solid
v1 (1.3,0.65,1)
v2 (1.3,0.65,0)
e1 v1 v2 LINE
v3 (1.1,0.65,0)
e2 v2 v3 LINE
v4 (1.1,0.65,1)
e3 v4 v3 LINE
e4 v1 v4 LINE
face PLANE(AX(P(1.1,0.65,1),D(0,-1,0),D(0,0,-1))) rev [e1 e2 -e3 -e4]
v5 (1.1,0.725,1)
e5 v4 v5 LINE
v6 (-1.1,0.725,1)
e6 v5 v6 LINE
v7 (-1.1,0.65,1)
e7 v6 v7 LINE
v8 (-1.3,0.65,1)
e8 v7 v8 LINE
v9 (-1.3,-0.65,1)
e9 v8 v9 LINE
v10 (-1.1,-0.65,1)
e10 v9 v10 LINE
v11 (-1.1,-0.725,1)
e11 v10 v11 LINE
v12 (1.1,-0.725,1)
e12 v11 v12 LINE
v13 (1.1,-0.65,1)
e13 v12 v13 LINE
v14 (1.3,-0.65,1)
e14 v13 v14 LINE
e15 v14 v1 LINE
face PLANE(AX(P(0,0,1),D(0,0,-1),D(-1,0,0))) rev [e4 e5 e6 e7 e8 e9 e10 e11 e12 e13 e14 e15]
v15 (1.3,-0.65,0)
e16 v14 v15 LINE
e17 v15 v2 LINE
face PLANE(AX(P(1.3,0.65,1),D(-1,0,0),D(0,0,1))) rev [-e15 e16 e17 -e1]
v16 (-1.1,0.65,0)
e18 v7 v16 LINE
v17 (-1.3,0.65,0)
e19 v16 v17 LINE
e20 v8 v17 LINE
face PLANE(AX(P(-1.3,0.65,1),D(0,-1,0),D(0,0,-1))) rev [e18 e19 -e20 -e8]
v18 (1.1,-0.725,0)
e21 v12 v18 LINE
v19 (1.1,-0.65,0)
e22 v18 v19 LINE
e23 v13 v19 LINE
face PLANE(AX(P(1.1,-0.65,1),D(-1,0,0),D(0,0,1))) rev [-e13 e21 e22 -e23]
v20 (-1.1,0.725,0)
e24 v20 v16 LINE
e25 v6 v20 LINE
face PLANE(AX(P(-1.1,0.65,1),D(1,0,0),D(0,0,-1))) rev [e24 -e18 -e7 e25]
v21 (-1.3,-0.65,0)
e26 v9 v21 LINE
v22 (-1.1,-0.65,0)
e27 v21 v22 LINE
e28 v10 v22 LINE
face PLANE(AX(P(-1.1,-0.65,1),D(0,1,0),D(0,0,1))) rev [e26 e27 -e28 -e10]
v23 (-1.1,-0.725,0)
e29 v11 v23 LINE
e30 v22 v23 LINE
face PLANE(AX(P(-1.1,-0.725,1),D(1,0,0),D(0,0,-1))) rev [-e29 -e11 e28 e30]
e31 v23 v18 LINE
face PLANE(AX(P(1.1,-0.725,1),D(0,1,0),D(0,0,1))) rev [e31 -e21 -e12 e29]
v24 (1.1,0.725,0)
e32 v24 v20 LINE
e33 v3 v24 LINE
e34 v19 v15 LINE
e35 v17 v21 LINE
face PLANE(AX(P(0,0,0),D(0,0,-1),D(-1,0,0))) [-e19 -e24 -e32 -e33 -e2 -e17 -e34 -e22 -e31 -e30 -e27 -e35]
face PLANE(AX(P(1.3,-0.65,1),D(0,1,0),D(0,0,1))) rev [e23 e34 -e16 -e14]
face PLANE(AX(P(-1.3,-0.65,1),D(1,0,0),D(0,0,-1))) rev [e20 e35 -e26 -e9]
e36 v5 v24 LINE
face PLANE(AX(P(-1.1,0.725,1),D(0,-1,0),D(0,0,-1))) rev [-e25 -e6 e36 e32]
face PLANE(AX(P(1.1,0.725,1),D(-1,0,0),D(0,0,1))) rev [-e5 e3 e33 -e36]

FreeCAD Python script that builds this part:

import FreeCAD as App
import Part
import Sketcher
from FreeCAD import Vector


def add_polygon(sketch, points):
    """Adds a closed chain of lines whose ends are joined by coincident constraints."""
    first, n = sketch.GeometryCount, len(points)
    for a, b in zip(points, points[1:] + points[:1]):
        sketch.addGeometry(Part.LineSegment(App.Vector(*a, 0), App.Vector(*b, 0)), False)
    for i in range(n):
        sketch.addConstraint(Sketcher.Constraint("Coincident", first + i, 2, first + (i + 1) % n, 1))

doc = App.newDocument("Part")
body = doc.addObject("PartDesign::Body", "Body")

# Sketch on XY plane
sketch1 = doc.addObject("Sketcher::SketchObject", "Sketch")
body.addObject(sketch1)
sketch1.AttachmentSupport = (doc.XY_Plane, [""])
sketch1.MapMode = "FlatFace"
add_polygon(sketch1, [(-1.1, 0.65), (-1.3, 0.65), (-1.3, -0.65), (-1.1, -0.65), (-1.1, -0.72), (1.1, -0.72), (1.1, -0.65), (1.3, -0.65), (1.3, 0.65), (1.1, 0.65), (1.1, 0.72), (-1.1, 0.72)])  # lines 0-11
sketch1.addConstraint([
    Sketcher.Constraint("Horizontal", 0),
    Sketcher.Constraint("Vertical", 1),
    Sketcher.Constraint("Horizontal", 2),
    Sketcher.Constraint("Vertical", 3),
    Sketcher.Constraint("Horizontal", 4),
    Sketcher.Constraint("Vertical", 5),
    Sketcher.Constraint("Horizontal", 6),
    Sketcher.Constraint("Vertical", 7),
    Sketcher.Constraint("Horizontal", 8),
    Sketcher.Constraint("Vertical", 9),
    Sketcher.Constraint("Horizontal", 10),
    Sketcher.Constraint("Vertical", 11),
    Sketcher.Constraint("Symmetric", 0, 2, 6, 2, -1, 1),
    Sketcher.Constraint("Symmetric", 2, 2, 8, 2, -1, 1),
    Sketcher.Constraint("Symmetric", 4, 2, 10, 2, -1, 1),
    Sketcher.Constraint("Symmetric", 2, 2, 5, 2, -2),
    Sketcher.Constraint("DistanceX", 0, 2, 0, 1, 0.2),
    Sketcher.Constraint("DistanceX", 4, 1, 4, 2, 2.2),
    Sketcher.Constraint("DistanceY", 1, 2, 1, 1, 1.3),
    Sketcher.Constraint("DistanceY", 3, 2, 3, 1, 0.075),
])
pad1 = doc.addObject("PartDesign::Pad", "Pad")
body.addObject(pad1)
pad1.Profile = sketch1
pad1.Length = 1

doc.recompute()
